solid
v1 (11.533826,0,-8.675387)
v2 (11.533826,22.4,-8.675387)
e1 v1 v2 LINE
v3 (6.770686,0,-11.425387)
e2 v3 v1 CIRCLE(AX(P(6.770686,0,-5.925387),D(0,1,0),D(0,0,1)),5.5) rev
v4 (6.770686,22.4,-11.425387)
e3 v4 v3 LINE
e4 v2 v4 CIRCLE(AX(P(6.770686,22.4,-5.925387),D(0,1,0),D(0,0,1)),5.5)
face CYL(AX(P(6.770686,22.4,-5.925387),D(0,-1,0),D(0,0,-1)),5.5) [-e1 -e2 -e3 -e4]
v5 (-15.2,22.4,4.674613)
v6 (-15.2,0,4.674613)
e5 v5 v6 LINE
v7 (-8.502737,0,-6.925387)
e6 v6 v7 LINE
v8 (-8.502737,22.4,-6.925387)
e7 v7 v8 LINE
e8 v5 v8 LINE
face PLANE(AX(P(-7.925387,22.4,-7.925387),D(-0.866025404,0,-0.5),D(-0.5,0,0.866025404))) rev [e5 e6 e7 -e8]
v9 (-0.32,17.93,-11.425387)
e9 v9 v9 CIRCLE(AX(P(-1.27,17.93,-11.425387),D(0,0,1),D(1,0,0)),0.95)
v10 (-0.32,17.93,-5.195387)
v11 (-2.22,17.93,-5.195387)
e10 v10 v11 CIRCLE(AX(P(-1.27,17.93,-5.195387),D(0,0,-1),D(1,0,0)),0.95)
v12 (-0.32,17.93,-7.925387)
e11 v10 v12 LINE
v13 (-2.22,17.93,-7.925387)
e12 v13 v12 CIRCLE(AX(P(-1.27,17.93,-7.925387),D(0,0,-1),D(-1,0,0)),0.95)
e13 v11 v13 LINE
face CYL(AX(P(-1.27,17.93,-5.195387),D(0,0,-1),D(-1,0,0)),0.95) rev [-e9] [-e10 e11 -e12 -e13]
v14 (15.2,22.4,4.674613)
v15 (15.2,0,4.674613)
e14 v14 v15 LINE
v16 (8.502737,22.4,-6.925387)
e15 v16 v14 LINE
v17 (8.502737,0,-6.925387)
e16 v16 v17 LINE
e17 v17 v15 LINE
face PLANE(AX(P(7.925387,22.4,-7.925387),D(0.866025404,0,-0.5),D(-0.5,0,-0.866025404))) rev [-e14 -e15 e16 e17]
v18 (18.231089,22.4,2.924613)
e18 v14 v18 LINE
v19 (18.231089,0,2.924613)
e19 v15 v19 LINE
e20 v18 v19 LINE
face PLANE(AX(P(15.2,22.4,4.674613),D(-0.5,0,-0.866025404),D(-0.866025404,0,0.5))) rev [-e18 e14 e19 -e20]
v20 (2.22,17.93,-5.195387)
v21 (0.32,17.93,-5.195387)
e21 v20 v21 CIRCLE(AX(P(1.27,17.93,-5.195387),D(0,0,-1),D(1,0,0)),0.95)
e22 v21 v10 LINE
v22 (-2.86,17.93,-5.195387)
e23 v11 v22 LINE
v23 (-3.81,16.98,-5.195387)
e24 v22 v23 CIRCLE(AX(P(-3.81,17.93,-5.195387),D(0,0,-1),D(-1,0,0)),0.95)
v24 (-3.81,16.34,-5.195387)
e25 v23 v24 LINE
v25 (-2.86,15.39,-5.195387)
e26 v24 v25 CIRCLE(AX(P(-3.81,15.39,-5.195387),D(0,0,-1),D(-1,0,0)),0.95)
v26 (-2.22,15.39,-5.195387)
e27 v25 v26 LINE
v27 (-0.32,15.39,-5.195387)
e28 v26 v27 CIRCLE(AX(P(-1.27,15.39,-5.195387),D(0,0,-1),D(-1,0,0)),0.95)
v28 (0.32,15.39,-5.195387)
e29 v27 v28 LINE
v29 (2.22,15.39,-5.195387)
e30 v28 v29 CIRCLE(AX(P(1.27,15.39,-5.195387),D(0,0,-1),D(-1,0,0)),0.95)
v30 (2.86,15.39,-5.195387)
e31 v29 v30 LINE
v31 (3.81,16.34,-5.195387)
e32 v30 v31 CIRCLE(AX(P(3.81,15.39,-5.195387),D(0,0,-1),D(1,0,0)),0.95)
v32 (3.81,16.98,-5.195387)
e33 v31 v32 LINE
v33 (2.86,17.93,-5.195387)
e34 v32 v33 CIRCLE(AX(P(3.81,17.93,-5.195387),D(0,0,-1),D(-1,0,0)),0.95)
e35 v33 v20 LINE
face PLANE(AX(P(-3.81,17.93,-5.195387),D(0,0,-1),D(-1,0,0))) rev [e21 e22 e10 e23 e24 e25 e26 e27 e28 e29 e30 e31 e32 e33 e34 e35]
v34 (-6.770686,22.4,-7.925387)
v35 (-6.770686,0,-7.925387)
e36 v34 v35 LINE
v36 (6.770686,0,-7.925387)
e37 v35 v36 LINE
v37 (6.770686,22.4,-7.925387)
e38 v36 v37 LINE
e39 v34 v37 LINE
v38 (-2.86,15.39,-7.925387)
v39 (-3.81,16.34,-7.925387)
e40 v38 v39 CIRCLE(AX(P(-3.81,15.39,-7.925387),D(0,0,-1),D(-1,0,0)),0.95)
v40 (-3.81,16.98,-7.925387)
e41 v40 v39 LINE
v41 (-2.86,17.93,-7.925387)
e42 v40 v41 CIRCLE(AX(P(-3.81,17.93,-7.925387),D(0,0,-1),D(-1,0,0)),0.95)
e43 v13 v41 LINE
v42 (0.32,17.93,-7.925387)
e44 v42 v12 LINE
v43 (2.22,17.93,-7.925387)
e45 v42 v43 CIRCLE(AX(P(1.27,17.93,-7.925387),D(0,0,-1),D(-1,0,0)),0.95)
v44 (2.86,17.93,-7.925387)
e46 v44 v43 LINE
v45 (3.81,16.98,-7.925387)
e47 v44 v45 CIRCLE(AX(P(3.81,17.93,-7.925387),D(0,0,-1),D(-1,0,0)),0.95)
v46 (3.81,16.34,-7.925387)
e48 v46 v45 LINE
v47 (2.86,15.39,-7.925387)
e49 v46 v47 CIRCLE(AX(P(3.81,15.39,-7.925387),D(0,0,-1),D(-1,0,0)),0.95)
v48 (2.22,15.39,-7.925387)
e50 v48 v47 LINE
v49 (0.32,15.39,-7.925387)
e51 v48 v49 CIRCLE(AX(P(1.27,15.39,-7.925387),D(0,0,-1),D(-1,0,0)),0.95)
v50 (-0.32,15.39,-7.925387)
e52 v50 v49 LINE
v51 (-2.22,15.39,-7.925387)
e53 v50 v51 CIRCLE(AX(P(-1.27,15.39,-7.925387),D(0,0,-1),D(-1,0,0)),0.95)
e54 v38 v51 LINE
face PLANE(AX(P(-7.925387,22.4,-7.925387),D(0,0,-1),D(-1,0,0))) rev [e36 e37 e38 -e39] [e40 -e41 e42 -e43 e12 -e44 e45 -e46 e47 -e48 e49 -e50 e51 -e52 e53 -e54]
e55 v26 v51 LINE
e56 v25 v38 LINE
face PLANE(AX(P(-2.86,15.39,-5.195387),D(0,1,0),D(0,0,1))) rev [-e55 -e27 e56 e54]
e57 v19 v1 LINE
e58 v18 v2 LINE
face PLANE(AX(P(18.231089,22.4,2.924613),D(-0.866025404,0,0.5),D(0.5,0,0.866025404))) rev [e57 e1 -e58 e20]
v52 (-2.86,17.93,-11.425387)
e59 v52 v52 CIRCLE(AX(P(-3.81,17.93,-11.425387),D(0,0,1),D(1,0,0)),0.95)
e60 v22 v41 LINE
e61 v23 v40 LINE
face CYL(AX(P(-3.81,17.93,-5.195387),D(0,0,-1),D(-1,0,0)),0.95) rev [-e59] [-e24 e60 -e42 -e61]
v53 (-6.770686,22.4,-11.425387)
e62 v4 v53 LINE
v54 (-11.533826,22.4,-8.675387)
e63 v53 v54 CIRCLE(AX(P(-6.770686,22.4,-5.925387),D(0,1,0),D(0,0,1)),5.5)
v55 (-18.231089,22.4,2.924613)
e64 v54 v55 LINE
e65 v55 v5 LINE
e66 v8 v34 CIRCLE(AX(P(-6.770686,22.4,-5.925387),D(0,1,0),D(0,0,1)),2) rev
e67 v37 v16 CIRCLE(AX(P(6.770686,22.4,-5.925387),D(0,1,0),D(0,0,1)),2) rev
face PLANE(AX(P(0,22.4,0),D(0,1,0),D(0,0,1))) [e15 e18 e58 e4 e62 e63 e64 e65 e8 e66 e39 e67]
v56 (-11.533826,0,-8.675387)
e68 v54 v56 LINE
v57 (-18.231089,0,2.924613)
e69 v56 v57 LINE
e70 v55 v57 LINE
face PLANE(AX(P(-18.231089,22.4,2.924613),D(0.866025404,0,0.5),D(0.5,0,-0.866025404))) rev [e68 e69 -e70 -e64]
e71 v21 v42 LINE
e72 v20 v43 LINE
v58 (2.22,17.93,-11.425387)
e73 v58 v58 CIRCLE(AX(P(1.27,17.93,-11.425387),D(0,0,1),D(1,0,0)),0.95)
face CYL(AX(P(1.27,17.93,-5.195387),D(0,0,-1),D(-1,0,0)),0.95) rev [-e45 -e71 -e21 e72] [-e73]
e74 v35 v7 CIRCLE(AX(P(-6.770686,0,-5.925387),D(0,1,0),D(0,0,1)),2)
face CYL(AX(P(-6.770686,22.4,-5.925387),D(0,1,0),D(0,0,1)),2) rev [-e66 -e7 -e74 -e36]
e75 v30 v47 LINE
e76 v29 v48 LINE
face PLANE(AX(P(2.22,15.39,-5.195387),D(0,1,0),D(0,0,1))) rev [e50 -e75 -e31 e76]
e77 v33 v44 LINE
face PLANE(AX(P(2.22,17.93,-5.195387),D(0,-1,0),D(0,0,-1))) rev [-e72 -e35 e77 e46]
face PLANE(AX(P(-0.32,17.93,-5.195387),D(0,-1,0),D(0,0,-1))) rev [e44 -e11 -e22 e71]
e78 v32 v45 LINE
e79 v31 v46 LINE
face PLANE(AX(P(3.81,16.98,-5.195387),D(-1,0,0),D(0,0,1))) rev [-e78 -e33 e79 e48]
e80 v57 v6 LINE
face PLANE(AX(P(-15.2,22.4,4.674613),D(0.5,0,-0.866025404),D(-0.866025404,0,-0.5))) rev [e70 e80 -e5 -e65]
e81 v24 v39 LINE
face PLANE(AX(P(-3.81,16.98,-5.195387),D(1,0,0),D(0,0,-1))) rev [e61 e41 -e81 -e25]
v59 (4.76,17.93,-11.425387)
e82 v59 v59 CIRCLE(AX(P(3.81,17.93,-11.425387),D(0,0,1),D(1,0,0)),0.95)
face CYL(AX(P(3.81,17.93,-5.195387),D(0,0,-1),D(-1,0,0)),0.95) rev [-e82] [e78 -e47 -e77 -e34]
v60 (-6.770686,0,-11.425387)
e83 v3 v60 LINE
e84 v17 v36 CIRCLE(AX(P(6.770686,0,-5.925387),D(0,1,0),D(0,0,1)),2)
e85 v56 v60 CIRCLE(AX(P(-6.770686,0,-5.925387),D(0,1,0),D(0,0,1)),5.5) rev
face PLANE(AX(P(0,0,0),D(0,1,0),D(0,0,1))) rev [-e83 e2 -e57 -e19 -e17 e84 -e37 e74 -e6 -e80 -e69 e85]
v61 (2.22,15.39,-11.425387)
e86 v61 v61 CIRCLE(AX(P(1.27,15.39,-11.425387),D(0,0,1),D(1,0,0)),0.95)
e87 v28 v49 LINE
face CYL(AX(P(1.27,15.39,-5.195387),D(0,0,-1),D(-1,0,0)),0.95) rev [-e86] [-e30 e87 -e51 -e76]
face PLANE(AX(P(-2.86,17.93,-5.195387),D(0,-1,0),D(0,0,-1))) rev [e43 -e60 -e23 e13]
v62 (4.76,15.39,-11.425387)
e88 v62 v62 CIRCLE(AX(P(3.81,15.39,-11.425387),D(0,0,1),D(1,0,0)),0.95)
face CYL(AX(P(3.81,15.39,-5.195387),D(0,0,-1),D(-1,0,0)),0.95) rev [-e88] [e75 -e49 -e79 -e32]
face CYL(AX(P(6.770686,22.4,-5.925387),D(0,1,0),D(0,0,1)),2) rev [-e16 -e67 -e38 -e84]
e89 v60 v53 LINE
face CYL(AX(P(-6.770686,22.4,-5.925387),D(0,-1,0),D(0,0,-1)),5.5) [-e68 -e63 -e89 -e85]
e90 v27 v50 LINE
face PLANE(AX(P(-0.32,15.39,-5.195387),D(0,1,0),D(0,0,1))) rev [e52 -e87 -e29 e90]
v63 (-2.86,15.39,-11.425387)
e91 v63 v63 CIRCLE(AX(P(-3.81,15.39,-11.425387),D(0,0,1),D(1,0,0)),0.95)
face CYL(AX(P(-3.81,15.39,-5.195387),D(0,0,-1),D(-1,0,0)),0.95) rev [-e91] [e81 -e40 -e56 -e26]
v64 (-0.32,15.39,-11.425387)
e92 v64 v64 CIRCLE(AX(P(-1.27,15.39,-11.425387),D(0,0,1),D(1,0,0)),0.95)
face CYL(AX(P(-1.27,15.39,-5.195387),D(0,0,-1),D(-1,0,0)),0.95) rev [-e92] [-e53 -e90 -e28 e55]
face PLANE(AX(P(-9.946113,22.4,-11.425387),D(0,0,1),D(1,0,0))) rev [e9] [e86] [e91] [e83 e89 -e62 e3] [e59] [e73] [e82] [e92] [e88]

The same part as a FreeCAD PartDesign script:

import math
import FreeCAD as App
import Part
import Sketcher
from FreeCAD import Vector
Q = App.Units.Quantity


def edges_at(feature, points):
    """Names of the edges that pass closest to the given points."""
    edges = feature.Shape.Edges
    near = lambda p: min(range(len(edges)), key=lambda i: edges[i].distToShape(Part.Vertex(*p))[0])
    return sorted({f"Edge{near(p) + 1}" for p in points})


def add_polygon(sketch, points):
    """Adds a closed chain of lines whose ends are joined by coincident constraints."""
    first, n = sketch.GeometryCount, len(points)
    for a, b in zip(points, points[1:] + points[:1]):
        sketch.addGeometry(Part.LineSegment(App.Vector(*a, 0), App.Vector(*b, 0)), False)
    for i in range(n):
        sketch.addConstraint(Sketcher.Constraint("Coincident", first + i, 2, first + (i + 1) % n, 1))

doc = App.newDocument("Part")
body = doc.addObject("PartDesign::Body", "Body")

# Sketch on XZ plane
sketch1 = doc.addObject("Sketcher::SketchObject", "Sketch")
body.addObject(sketch1)
sketch1.AttachmentSupport = (doc.XZ_Plane, [""])
sketch1.MapMode = "FlatFace"
add_polygon(sketch1, [(-15.2, 4.7), (-7.9, -7.9), (7.9, -7.9), (15.2, 4.7), (18.2, 2.9), (9.9, -11.4), (-9.9, -11.4), (-18.2, 2.9)])  # lines 0-7
sketch1.addConstraint([
    Sketcher.Constraint("Horizontal", 1),
    Sketcher.Constraint("Horizontal", 5),
    Sketcher.Constraint("Symmetric", 3, 2, 6, 2, -2),
    Sketcher.Constraint("Symmetric", 2, 2, 7, 2, -2),
    Sketcher.Constraint("Perpendicular", 2, 3),
    Sketcher.Constraint("Perpendicular", 3, 4),
    Sketcher.Constraint("Parallel", 0, 6),
    Sketcher.Constraint("Perpendicular", 6, 7),
    Sketcher.Constraint("Angle", 0, Q("-60 deg")),
    Sketcher.Constraint("Distance", 3, 3.5),
    Sketcher.Constraint("DistanceX", -1, 1, 2, 2, 15.2),
    Sketcher.Constraint("DistanceY", 1, 2, 2, 2, 12.6),
    Sketcher.Constraint("DistanceY", 4, 2, 1, 2, 3.5),
    Sketcher.Constraint("DistanceY", 0, 2, -1, 1, 7.925387),
])
pad1 = doc.addObject("PartDesign::Pad", "Pad")
body.addObject(pad1)
pad1.Profile = sketch1
pad1.Length = 22.4
pad1.Reversed = True
doc.recompute()

fillet = doc.addObject("PartDesign::Fillet", "Fillet")
body.addObject(fillet)
fillet.Base = (pad1, edges_at(pad1, [(7.925, 11.2, -7.925), (-7.925, 11.2, -7.925)]))
fillet.Radius = 2
doc.recompute()

fillet2 = doc.addObject("PartDesign::Fillet", "Fillet001")
body.addObject(fillet2)
fillet2.Base = (fillet, edges_at(fillet, [(-9.946, 11.2, -11.425), (9.946, 11.2, -11.425)]))
fillet2.Radius = 5.5

# Sketch on XY plane
sketch2 = doc.addObject("Sketcher::SketchObject", "Sketch001")
body.addObject(sketch2)
sketch2.AttachmentSupport = (doc.XY_Plane, [""])
sketch2.MapMode = "FlatFace"
sketch2.AttachmentOffset = App.Placement(Vector(0, 0, -7.925387), App.Rotation())
sketch2.addGeometry([
    Part.LineSegment(Vector(0.3, 17.9, 0), Vector(-0.3, 17.9, 0)),  # 0
    Part.ArcOfCircle(Part.Circle(Vector(-1.3, 17.9, 0), Vector(0, 0, 1), 0.9), math.radians(180), math.radians(360)),  # 1
    Part.LineSegment(Vector(-2.2, 17.9, 0), Vector(-2.9, 17.9, 0)),  # 2
    Part.ArcOfCircle(Part.Circle(Vector(-3.8, 17.9, 0), Vector(0, 0, 1), 0.9), math.radians(-90), math.radians(0)),  # 3
    Part.LineSegment(Vector(-3.8, 17, 0), Vector(-3.8, 16.3, 0)),  # 4
    Part.ArcOfCircle(Part.Circle(Vector(-3.8, 15.4, 0), Vector(0, 0, 1), 0.9), math.radians(0), math.radians(90)),  # 5
    Part.LineSegment(Vector(-2.9, 15.4, 0), Vector(-2.2, 15.4, 0)),  # 6
    Part.ArcOfCircle(Part.Circle(Vector(-1.3, 15.4, 0), Vector(0, 0, 1), 0.9), math.radians(0), math.radians(180)),  # 7
    Part.LineSegment(Vector(-0.3, 15.4, 0), Vector(0.3, 15.4, 0)),  # 8
    Part.ArcOfCircle(Part.Circle(Vector(1.3, 15.4, 0), Vector(0, 0, 1), 0.9), math.radians(0), math.radians(180)),  # 9
    Part.LineSegment(Vector(2.2, 15.4, 0), Vector(2.9, 15.4, 0)),  # 10
    Part.ArcOfCircle(Part.Circle(Vector(3.8, 15.4, 0), Vector(0, 0, 1), 0.9), math.radians(90), math.radians(180)),  # 11
    Part.LineSegment(Vector(3.8, 16.3, 0), Vector(3.8, 17, 0)),  # 12
    Part.ArcOfCircle(Part.Circle(Vector(3.8, 17.9, 0), Vector(0, 0, 1), 0.9), math.radians(180), math.radians(270)),  # 13
    Part.LineSegment(Vector(2.9, 17.9, 0), Vector(2.2, 17.9, 0)),  # 14
    Part.ArcOfCircle(Part.Circle(Vector(1.3, 17.9, 0), Vector(0, 0, 1), 0.9), math.radians(180), math.radians(360)),  # 15
], False)
sketch2.addConstraint([
    Sketcher.Constraint("Coincident", 0, 2, 1, 2),
    Sketcher.Constraint("Coincident", 1, 1, 2, 1),
    Sketcher.Constraint("Coincident", 2, 2, 3, 2),
    Sketcher.Constraint("Coincident", 3, 1, 4, 1),
    Sketcher.Constraint("Coincident", 4, 2, 5, 2),
    Sketcher.Constraint("Coincident", 5, 1, 6, 1),
    Sketcher.Constraint("Coincident", 6, 2, 7, 2),
    Sketcher.Constraint("Coincident", 7, 1, 8, 1),
    Sketcher.Constraint("Coincident", 8, 2, 9, 2),
    Sketcher.Constraint("Coincident", 9, 1, 10, 1),
    Sketcher.Constraint("Coincident", 10, 2, 11, 2),
    Sketcher.Constraint("Coincident", 11, 1, 12, 1),
    Sketcher.Constraint("Coincident", 12, 2, 13, 2),
    Sketcher.Constraint("Coincident", 13, 1, 14, 1),
    Sketcher.Constraint("Coincident", 14, 2, 15, 2),
    Sketcher.Constraint("Coincident", 15, 1, 0, 1),
    Sketcher.Constraint("Horizontal", 0),
    Sketcher.Constraint("Horizontal", 2),
    Sketcher.Constraint("Vertical", 4),
    Sketcher.Constraint("Horizontal", 6),
    Sketcher.Constraint("Horizontal", 8),
    Sketcher.Constraint("Horizontal", 10),
    Sketcher.Constraint("Vertical", 12),
    Sketcher.Constraint("Horizontal", 14),
    Sketcher.Constraint("Equal", 1, 3),
    Sketcher.Constraint("Equal", 3, 5),
    Sketcher.Constraint("Equal", 5, 7),
    Sketcher.Constraint("Equal", 7, 9),
    Sketcher.Constraint("Equal", 9, 11),
    Sketcher.Constraint("Equal", 11, 13),
    Sketcher.Constraint("Equal", 13, 15),
    Sketcher.Constraint("Symmetric", 7, 3, 9, 3, -2),
    Sketcher.Constraint("Symmetric", 5, 3, 11, 3, -2),
    Sketcher.Constraint("Symmetric", 3, 3, 13, 3, -2),
    Sketcher.Constraint("Symmetric", 1, 3, 15, 3, -2),
    Sketcher.Constraint("Horizontal", 1, 3, 3, 3),
    Sketcher.Constraint("Horizontal", 5, 3, 7, 3),
    Sketcher.Constraint("Horizontal", 15, 3, 0, 2),
    Sketcher.Constraint("Horizontal", 0, 2, 1, 1),
    Sketcher.Constraint("Horizontal", 11, 3, 5, 1),
    Sketcher.Constraint("Horizontal", 6, 2, 7, 1),
    Sketcher.Constraint("Horizontal", 8, 2, 9, 1),
    Sketcher.Constraint("Horizontal", 2, 2, 13, 1),
    Sketcher.Constraint("Vertical", 3, 3, 5, 3),
    Sketcher.Constraint("Vertical", 1, 3, 7, 3),
    Sketcher.Constraint("Vertical", 5, 3, 3, 1),
    Sketcher.Constraint("Vertical", 13, 3, 11, 1),
    Sketcher.Constraint("Equal", 0, 2),
    Sketcher.Constraint("Equal", 14, 4),
    Sketcher.Constraint("Radius", 1, 0.95),
    Sketcher.Constraint("DistanceX", 0, 2, 0, 1, 0.64),
    Sketcher.Constraint("DistanceY", -1, 1, 1, 3, 17.93),
])
pad2 = doc.addObject("PartDesign::Pad", "Pad001")
body.addObject(pad2)
pad2.Profile = sketch2
pad2.Length = 2.73

# Sketch on XY plane
sketch3 = doc.addObject("Sketcher::SketchObject", "Sketch002")
body.addObject(sketch3)
sketch3.AttachmentSupport = (doc.XY_Plane, [""])
sketch3.MapMode = "FlatFace"
sketch3.AttachmentOffset = App.Placement(Vector(0, 0, -7.925387), App.Rotation())
sketch3.addGeometry([
    Part.Circle(Vector(-3.8, 17.9, 0), Vector(0, 0, 1), 0.9),  # 0
    Part.Circle(Vector(-1.3, 17.9, 0), Vector(0, 0, 1), 0.9),  # 1
    Part.Circle(Vector(1.3, 17.9, 0), Vector(0, 0, 1), 0.9),  # 2
    Part.Circle(Vector(3.8, 17.9, 0), Vector(0, 0, 1), 0.9),  # 3
    Part.Circle(Vector(3.8, 15.4, 0), Vector(0, 0, 1), 0.9),  # 4
    Part.Circle(Vector(1.3, 15.4, 0), Vector(0, 0, 1), 0.9),  # 5
    Part.Circle(Vector(-1.3, 15.4, 0), Vector(0, 0, 1), 0.9),  # 6
    Part.Circle(Vector(-3.8, 15.4, 0), Vector(0, 0, 1), 0.9),  # 7
], False)
sketch3.addConstraint([
    Sketcher.Constraint("Equal", 0, 1),
    Sketcher.Constraint("Equal", 1, 2),
    Sketcher.Constraint("Equal", 2, 3),
    Sketcher.Constraint("Equal", 3, 4),
    Sketcher.Constraint("Equal", 4, 5),
    Sketcher.Constraint("Equal", 5, 6),
    Sketcher.Constraint("Equal", 6, 7),
    Sketcher.Constraint("Symmetric", 1, 3, 2, 3, -2),
    Sketcher.Constraint("Symmetric", 0, 3, 3, 3, -2),
    Sketcher.Constraint("Symmetric", 5, 3, 6, 3, -2),
    Sketcher.Constraint("Symmetric", 4, 3, 7, 3, -2),
    Sketcher.Constraint("Horizontal", 0, 3, 1, 3),
    Sketcher.Constraint("Horizontal", 4, 3, 5, 3),
    Sketcher.Constraint("Vertical", 3, 3, 4, 3),
    Sketcher.Constraint("Vertical", 2, 3, 5, 3),
    Sketcher.Constraint("Diameter", 0, 1.9),
    Sketcher.Constraint("DistanceX", 0, 3, -1, 1, 3.81),
    Sketcher.Constraint("DistanceY", -1, 1, 0, 3, 17.93),
    Sketcher.Constraint("DistanceX", 1, 3, -1, 1, 1.27),
    Sketcher.Constraint("DistanceY", -1, 1, 4, 3, 15.39),
])
pocket1 = doc.addObject("PartDesign::Pocket", "Pocket")
body.addObject(pocket1)
pocket1.Profile = sketch3
pocket1.Type = "ThroughAll"
pocket1.Midplane = True

doc.recompute()
